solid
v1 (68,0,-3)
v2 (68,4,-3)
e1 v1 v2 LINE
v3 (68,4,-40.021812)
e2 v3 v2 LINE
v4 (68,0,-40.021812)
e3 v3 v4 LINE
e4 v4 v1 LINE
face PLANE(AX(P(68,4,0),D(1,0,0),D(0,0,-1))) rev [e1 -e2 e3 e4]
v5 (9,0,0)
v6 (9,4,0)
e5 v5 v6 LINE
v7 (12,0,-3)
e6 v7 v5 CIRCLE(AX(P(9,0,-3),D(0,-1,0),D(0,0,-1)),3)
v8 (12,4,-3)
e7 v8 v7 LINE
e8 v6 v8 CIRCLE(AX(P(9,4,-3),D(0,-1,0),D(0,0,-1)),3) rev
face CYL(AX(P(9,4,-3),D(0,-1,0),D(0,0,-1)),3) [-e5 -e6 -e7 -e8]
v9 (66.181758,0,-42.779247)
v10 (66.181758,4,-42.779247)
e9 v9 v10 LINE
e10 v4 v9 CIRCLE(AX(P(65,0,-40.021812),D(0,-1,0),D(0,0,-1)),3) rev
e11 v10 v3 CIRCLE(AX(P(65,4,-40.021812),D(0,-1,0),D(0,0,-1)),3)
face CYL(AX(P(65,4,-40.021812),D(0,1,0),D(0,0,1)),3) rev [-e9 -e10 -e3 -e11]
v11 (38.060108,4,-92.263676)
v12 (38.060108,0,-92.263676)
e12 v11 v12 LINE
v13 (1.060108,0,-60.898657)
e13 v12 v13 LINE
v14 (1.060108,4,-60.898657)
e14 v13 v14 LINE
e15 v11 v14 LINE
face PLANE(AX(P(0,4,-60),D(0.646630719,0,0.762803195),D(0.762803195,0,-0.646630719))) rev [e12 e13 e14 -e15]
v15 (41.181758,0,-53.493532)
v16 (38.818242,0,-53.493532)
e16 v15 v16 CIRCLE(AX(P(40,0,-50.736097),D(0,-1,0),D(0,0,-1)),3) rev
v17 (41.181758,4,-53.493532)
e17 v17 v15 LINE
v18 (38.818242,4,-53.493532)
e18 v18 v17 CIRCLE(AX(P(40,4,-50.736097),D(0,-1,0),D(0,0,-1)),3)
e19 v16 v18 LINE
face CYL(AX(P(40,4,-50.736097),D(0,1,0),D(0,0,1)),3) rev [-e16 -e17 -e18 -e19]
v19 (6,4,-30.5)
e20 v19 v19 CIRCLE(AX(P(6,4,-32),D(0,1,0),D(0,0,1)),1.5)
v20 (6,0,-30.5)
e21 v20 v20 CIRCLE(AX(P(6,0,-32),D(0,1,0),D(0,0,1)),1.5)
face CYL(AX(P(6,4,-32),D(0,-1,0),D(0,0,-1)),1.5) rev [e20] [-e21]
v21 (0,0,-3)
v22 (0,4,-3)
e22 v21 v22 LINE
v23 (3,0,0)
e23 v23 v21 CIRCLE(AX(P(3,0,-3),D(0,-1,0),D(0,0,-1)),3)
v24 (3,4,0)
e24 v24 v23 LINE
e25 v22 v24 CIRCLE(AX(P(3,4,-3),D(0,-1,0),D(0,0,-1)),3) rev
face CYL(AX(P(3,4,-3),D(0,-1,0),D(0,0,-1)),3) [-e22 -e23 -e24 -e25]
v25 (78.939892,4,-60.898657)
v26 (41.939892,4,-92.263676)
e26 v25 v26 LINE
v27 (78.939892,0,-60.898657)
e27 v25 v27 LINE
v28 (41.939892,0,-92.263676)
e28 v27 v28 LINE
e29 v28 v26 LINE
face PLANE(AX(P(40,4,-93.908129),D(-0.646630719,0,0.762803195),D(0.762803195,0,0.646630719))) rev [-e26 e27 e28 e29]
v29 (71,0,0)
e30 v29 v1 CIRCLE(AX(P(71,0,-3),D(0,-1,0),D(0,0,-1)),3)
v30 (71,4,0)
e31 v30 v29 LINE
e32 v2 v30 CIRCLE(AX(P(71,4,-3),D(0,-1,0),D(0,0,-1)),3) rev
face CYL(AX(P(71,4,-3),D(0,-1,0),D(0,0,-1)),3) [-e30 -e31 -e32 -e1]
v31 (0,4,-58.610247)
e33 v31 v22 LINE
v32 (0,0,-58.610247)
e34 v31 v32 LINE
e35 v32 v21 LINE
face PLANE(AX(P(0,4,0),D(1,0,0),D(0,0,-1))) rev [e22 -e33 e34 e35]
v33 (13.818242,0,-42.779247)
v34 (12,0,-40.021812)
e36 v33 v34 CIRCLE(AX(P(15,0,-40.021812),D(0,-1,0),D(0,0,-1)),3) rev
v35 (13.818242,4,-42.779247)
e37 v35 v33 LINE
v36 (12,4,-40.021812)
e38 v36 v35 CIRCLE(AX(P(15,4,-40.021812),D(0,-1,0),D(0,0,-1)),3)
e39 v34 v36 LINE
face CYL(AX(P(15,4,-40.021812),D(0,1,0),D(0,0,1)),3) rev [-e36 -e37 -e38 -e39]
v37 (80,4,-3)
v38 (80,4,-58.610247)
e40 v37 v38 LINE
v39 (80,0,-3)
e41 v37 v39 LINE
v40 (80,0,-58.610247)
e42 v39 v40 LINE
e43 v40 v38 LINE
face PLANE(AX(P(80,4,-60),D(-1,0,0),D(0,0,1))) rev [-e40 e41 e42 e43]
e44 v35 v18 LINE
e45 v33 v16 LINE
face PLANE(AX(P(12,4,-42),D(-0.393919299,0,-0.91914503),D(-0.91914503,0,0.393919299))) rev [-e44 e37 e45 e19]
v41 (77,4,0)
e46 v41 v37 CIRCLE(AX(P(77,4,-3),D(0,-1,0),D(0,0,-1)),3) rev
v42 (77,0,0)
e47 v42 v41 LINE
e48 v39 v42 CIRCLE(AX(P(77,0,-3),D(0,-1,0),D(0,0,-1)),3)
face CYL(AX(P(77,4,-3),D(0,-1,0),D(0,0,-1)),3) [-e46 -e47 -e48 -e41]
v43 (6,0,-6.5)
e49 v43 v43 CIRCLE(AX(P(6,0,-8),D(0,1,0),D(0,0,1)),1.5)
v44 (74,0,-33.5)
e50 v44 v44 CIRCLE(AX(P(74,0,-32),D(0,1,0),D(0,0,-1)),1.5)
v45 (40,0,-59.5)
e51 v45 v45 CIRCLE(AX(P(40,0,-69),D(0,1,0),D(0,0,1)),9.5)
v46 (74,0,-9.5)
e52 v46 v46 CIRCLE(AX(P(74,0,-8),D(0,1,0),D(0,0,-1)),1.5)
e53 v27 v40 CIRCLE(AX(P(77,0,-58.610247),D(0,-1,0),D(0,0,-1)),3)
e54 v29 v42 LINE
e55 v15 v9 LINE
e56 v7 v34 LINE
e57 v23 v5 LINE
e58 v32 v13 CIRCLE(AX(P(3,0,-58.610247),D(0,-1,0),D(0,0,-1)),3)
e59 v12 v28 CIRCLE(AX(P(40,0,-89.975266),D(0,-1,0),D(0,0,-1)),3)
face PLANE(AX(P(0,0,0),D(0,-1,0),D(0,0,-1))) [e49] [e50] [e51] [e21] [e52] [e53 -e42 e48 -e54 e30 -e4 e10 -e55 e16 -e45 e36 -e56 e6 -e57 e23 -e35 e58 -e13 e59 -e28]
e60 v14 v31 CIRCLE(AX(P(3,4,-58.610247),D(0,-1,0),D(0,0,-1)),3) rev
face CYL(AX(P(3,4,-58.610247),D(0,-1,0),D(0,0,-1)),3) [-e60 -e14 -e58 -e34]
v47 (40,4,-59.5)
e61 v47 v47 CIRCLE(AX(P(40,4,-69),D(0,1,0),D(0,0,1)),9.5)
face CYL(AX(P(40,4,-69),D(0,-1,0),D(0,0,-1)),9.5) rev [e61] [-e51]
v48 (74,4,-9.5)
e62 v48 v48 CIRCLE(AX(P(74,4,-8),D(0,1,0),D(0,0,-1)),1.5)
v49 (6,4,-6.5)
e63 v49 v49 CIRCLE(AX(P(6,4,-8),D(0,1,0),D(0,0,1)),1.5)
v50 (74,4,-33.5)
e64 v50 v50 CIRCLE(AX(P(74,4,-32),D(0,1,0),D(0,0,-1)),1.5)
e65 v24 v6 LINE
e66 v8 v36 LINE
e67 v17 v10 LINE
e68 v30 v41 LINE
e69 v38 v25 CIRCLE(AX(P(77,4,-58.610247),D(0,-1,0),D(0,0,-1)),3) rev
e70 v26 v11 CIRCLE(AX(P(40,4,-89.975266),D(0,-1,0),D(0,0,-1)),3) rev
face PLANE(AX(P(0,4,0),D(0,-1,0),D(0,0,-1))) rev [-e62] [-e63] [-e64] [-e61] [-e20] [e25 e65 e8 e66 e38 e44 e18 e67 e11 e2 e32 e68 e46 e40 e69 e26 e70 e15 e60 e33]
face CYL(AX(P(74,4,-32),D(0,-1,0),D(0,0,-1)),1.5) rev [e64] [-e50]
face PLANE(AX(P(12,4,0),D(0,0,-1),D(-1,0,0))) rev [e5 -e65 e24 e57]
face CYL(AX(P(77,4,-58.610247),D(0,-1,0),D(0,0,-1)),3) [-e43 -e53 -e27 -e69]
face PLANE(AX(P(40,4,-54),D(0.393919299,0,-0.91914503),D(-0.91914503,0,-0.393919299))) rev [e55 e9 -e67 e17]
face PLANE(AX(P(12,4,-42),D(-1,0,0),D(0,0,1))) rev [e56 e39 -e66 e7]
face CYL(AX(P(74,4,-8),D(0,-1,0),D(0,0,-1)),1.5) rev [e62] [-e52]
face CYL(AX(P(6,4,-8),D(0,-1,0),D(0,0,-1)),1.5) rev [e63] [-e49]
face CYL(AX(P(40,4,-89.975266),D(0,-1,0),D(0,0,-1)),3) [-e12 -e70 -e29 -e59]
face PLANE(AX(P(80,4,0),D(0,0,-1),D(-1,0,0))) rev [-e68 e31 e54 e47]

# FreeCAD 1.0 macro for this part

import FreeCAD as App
import Part
import Sketcher
from FreeCAD import Vector
Q = App.Units.Quantity


def edges_at(feature, points):
    """Names of the edges that pass closest to the given points."""
    edges = feature.Shape.Edges
    near = lambda p: min(range(len(edges)), key=lambda i: edges[i].distToShape(Part.Vertex(*p))[0])
    return sorted({f"Edge{near(p) + 1}" for p in points})

doc = App.newDocument("Part")
params = doc.addObject("Spreadsheet::Sheet", "Params")
for row, (alias, value) in enumerate([
    ("sketch1_diameter", "3 mm"),
    ("sketch1_diameter2", "19 mm"),
    ("sketch1_width", "12 mm"),
    ("sketch1_height", "60 mm"),
    ("sketch1_height2", "42 mm"),
    ("pad1_length", "4 mm"),
    ("fillet_radius", "3 mm"),
], start=1):
    params.set(f"A{row}", alias)
    params.set(f"B{row}", "=" + value)
    params.setAlias(f"B{row}", alias)

body = doc.addObject("PartDesign::Body", "Body")

sketch1 = body.newObject("Sketcher::SketchObject", "Sketch")
sketch1.AttachmentSupport = (doc.getObject("XZ_Plane"), [""])
sketch1.MapMode = "FlatFace"
sketch1.addGeometry([
    Part.LineSegment(Vector(0, -60, 0), Vector(0, 0, 0)),
    Part.LineSegment(Vector(0, 0, 0), Vector(12, 0, 0)),
    Part.LineSegment(Vector(12, 0, 0), Vector(12, -42, 0)),
    Part.LineSegment(Vector(12, -42, 0), Vector(40, -54, 0)),
    Part.LineSegment(Vector(40, -54, 0), Vector(68, -42, 0)),
    Part.LineSegment(Vector(68, -42, 0), Vector(68, 0, 0)),
    Part.LineSegment(Vector(68, 0, 0), Vector(80, 0, 0)),
    Part.LineSegment(Vector(80, 0, 0), Vector(80, -60, 0)),
    Part.LineSegment(Vector(80, -60, 0), Vector(40, -93.9, 0)),
    Part.LineSegment(Vector(40, -93.9, 0), Vector(0, -60, 0)),
    Part.Circle(Vector(74, -8, 0), Vector(0, 0, 1), 1.5),
    Part.Circle(Vector(74, -32, 0), Vector(0, 0, 1), 1.5),
    Part.Circle(Vector(6, -8, 0), Vector(0, 0, 1), 1.5),
    Part.Circle(Vector(6, -32, 0), Vector(0, 0, 1), 1.5),
    Part.Circle(Vector(40, -69, 0), Vector(0, 0, 1), 9.5),
], False)
sketch1.addConstraint([
    Sketcher.Constraint("Coincident", 0, 2, 1, 1),
    Sketcher.Constraint("Coincident", 1, 2, 2, 1),
    Sketcher.Constraint("Coincident", 2, 2, 3, 1),
    Sketcher.Constraint("Coincident", 3, 2, 4, 1),
    Sketcher.Constraint("Coincident", 4, 2, 5, 1),
    Sketcher.Constraint("Coincident", 5, 2, 6, 1),
    Sketcher.Constraint("Coincident", 6, 2, 7, 1),
    Sketcher.Constraint("Coincident", 7, 2, 8, 1),
    Sketcher.Constraint("Coincident", 8, 2, 9, 1),
    Sketcher.Constraint("Coincident", 9, 2, 0, 1),
    Sketcher.Constraint("Vertical", 0),
    Sketcher.Constraint("Horizontal", 1),
    Sketcher.Constraint("Vertical", 2),
    Sketcher.Constraint("Vertical", 5),
    Sketcher.Constraint("Horizontal", 6),
    Sketcher.Constraint("Vertical", 7),
    Sketcher.Constraint("Coincident", 0, 2, -1, 1),
    Sketcher.Constraint("Equal", 10, 11),
    Sketcher.Constraint("Equal", 11, 12),
    Sketcher.Constraint("Equal", 12, 13),
    Sketcher.Constraint("PointOnObject", 5, 2, -1),
    Sketcher.Constraint("Horizontal", 10, 3, 12, 3),
    Sketcher.Constraint("Horizontal", 11, 3, 13, 3),
    Sketcher.Constraint("Horizontal", 2, 2, 4, 2),
    Sketcher.Constraint("Horizontal", 7, 2, 9, 2),
    Sketcher.Constraint("Vertical", 10, 3, 11, 3),
    Sketcher.Constraint("Vertical", 12, 3, 13, 3),
    Sketcher.Constraint("Vertical", 14, 3, 3, 2),
    Sketcher.Constraint("Vertical", 3, 2, 8, 2),
    Sketcher.Constraint("Equal", 1, 6),
    Sketcher.Constraint("Equal", 3, 4),
    Sketcher.Constraint("Diameter", 10, Q("3 mm")),
    Sketcher.Constraint("Diameter", 14, Q("19 mm")),
    Sketcher.Constraint("DistanceX", 1, 1, 1, 2, Q("12 mm")),
    Sketcher.Constraint("DistanceY", 0, 1, 0, 2, Q("60 mm")),
    Sketcher.Constraint("DistanceY", 2, 2, 2, 1, Q("42 mm")),
    Sketcher.Constraint("DistanceX", -1, 1, 10, 3, Q("74 mm")),
    Sketcher.Constraint("DistanceY", 10, 3, -1, 1, Q("8 mm")),
    Sketcher.Constraint("DistanceY", 11, 3, -1, 1, Q("32 mm")),
    Sketcher.Constraint("DistanceX", -1, 1, 12, 3, Q("6 mm")),
    Sketcher.Constraint("DistanceX", -1, 1, 14, 3, Q("40 mm")),
    Sketcher.Constraint("DistanceY", 14, 3, -1, 1, Q("69 mm")),
    Sketcher.Constraint("DistanceY", 3, 2, -1, 1, Q("54 mm")),
    Sketcher.Constraint("DistanceY", 8, 2, -1, 1, Q("93.908129 mm")),
])
sketch1.setExpression("Constraints[31]", "Params.sketch1_diameter")
sketch1.setExpression("Constraints[32]", "Params.sketch1_diameter2")
sketch1.setExpression("Constraints[33]", "Params.sketch1_width")
sketch1.setExpression("Constraints[34]", "Params.sketch1_height")
sketch1.setExpression("Constraints[35]", "Params.sketch1_height2")
pad1 = body.newObject("PartDesign::Pad", "Pad")
pad1.Profile = sketch1
pad1.setExpression("Length", "Params.pad1_length")
pad1.Reversed = True
doc.recompute()

fillet = body.newObject("PartDesign::Fillet", "Fillet")
fillet.Base = (pad1, edges_at(pad1, [
    (0, 2, 0),
    (0, 2, -60),
    (40, 2, -93.908),
    (80, 2, -60),
    (80, 2, 0),
    (68, 2, 0),
    (68, 2, -42),
    (40, 2, -54),
    (12, 2, -42),
    (12, 2, 0),
]))
fillet.setExpression("Radius", "Params.fillet_radius")

doc.recompute()
